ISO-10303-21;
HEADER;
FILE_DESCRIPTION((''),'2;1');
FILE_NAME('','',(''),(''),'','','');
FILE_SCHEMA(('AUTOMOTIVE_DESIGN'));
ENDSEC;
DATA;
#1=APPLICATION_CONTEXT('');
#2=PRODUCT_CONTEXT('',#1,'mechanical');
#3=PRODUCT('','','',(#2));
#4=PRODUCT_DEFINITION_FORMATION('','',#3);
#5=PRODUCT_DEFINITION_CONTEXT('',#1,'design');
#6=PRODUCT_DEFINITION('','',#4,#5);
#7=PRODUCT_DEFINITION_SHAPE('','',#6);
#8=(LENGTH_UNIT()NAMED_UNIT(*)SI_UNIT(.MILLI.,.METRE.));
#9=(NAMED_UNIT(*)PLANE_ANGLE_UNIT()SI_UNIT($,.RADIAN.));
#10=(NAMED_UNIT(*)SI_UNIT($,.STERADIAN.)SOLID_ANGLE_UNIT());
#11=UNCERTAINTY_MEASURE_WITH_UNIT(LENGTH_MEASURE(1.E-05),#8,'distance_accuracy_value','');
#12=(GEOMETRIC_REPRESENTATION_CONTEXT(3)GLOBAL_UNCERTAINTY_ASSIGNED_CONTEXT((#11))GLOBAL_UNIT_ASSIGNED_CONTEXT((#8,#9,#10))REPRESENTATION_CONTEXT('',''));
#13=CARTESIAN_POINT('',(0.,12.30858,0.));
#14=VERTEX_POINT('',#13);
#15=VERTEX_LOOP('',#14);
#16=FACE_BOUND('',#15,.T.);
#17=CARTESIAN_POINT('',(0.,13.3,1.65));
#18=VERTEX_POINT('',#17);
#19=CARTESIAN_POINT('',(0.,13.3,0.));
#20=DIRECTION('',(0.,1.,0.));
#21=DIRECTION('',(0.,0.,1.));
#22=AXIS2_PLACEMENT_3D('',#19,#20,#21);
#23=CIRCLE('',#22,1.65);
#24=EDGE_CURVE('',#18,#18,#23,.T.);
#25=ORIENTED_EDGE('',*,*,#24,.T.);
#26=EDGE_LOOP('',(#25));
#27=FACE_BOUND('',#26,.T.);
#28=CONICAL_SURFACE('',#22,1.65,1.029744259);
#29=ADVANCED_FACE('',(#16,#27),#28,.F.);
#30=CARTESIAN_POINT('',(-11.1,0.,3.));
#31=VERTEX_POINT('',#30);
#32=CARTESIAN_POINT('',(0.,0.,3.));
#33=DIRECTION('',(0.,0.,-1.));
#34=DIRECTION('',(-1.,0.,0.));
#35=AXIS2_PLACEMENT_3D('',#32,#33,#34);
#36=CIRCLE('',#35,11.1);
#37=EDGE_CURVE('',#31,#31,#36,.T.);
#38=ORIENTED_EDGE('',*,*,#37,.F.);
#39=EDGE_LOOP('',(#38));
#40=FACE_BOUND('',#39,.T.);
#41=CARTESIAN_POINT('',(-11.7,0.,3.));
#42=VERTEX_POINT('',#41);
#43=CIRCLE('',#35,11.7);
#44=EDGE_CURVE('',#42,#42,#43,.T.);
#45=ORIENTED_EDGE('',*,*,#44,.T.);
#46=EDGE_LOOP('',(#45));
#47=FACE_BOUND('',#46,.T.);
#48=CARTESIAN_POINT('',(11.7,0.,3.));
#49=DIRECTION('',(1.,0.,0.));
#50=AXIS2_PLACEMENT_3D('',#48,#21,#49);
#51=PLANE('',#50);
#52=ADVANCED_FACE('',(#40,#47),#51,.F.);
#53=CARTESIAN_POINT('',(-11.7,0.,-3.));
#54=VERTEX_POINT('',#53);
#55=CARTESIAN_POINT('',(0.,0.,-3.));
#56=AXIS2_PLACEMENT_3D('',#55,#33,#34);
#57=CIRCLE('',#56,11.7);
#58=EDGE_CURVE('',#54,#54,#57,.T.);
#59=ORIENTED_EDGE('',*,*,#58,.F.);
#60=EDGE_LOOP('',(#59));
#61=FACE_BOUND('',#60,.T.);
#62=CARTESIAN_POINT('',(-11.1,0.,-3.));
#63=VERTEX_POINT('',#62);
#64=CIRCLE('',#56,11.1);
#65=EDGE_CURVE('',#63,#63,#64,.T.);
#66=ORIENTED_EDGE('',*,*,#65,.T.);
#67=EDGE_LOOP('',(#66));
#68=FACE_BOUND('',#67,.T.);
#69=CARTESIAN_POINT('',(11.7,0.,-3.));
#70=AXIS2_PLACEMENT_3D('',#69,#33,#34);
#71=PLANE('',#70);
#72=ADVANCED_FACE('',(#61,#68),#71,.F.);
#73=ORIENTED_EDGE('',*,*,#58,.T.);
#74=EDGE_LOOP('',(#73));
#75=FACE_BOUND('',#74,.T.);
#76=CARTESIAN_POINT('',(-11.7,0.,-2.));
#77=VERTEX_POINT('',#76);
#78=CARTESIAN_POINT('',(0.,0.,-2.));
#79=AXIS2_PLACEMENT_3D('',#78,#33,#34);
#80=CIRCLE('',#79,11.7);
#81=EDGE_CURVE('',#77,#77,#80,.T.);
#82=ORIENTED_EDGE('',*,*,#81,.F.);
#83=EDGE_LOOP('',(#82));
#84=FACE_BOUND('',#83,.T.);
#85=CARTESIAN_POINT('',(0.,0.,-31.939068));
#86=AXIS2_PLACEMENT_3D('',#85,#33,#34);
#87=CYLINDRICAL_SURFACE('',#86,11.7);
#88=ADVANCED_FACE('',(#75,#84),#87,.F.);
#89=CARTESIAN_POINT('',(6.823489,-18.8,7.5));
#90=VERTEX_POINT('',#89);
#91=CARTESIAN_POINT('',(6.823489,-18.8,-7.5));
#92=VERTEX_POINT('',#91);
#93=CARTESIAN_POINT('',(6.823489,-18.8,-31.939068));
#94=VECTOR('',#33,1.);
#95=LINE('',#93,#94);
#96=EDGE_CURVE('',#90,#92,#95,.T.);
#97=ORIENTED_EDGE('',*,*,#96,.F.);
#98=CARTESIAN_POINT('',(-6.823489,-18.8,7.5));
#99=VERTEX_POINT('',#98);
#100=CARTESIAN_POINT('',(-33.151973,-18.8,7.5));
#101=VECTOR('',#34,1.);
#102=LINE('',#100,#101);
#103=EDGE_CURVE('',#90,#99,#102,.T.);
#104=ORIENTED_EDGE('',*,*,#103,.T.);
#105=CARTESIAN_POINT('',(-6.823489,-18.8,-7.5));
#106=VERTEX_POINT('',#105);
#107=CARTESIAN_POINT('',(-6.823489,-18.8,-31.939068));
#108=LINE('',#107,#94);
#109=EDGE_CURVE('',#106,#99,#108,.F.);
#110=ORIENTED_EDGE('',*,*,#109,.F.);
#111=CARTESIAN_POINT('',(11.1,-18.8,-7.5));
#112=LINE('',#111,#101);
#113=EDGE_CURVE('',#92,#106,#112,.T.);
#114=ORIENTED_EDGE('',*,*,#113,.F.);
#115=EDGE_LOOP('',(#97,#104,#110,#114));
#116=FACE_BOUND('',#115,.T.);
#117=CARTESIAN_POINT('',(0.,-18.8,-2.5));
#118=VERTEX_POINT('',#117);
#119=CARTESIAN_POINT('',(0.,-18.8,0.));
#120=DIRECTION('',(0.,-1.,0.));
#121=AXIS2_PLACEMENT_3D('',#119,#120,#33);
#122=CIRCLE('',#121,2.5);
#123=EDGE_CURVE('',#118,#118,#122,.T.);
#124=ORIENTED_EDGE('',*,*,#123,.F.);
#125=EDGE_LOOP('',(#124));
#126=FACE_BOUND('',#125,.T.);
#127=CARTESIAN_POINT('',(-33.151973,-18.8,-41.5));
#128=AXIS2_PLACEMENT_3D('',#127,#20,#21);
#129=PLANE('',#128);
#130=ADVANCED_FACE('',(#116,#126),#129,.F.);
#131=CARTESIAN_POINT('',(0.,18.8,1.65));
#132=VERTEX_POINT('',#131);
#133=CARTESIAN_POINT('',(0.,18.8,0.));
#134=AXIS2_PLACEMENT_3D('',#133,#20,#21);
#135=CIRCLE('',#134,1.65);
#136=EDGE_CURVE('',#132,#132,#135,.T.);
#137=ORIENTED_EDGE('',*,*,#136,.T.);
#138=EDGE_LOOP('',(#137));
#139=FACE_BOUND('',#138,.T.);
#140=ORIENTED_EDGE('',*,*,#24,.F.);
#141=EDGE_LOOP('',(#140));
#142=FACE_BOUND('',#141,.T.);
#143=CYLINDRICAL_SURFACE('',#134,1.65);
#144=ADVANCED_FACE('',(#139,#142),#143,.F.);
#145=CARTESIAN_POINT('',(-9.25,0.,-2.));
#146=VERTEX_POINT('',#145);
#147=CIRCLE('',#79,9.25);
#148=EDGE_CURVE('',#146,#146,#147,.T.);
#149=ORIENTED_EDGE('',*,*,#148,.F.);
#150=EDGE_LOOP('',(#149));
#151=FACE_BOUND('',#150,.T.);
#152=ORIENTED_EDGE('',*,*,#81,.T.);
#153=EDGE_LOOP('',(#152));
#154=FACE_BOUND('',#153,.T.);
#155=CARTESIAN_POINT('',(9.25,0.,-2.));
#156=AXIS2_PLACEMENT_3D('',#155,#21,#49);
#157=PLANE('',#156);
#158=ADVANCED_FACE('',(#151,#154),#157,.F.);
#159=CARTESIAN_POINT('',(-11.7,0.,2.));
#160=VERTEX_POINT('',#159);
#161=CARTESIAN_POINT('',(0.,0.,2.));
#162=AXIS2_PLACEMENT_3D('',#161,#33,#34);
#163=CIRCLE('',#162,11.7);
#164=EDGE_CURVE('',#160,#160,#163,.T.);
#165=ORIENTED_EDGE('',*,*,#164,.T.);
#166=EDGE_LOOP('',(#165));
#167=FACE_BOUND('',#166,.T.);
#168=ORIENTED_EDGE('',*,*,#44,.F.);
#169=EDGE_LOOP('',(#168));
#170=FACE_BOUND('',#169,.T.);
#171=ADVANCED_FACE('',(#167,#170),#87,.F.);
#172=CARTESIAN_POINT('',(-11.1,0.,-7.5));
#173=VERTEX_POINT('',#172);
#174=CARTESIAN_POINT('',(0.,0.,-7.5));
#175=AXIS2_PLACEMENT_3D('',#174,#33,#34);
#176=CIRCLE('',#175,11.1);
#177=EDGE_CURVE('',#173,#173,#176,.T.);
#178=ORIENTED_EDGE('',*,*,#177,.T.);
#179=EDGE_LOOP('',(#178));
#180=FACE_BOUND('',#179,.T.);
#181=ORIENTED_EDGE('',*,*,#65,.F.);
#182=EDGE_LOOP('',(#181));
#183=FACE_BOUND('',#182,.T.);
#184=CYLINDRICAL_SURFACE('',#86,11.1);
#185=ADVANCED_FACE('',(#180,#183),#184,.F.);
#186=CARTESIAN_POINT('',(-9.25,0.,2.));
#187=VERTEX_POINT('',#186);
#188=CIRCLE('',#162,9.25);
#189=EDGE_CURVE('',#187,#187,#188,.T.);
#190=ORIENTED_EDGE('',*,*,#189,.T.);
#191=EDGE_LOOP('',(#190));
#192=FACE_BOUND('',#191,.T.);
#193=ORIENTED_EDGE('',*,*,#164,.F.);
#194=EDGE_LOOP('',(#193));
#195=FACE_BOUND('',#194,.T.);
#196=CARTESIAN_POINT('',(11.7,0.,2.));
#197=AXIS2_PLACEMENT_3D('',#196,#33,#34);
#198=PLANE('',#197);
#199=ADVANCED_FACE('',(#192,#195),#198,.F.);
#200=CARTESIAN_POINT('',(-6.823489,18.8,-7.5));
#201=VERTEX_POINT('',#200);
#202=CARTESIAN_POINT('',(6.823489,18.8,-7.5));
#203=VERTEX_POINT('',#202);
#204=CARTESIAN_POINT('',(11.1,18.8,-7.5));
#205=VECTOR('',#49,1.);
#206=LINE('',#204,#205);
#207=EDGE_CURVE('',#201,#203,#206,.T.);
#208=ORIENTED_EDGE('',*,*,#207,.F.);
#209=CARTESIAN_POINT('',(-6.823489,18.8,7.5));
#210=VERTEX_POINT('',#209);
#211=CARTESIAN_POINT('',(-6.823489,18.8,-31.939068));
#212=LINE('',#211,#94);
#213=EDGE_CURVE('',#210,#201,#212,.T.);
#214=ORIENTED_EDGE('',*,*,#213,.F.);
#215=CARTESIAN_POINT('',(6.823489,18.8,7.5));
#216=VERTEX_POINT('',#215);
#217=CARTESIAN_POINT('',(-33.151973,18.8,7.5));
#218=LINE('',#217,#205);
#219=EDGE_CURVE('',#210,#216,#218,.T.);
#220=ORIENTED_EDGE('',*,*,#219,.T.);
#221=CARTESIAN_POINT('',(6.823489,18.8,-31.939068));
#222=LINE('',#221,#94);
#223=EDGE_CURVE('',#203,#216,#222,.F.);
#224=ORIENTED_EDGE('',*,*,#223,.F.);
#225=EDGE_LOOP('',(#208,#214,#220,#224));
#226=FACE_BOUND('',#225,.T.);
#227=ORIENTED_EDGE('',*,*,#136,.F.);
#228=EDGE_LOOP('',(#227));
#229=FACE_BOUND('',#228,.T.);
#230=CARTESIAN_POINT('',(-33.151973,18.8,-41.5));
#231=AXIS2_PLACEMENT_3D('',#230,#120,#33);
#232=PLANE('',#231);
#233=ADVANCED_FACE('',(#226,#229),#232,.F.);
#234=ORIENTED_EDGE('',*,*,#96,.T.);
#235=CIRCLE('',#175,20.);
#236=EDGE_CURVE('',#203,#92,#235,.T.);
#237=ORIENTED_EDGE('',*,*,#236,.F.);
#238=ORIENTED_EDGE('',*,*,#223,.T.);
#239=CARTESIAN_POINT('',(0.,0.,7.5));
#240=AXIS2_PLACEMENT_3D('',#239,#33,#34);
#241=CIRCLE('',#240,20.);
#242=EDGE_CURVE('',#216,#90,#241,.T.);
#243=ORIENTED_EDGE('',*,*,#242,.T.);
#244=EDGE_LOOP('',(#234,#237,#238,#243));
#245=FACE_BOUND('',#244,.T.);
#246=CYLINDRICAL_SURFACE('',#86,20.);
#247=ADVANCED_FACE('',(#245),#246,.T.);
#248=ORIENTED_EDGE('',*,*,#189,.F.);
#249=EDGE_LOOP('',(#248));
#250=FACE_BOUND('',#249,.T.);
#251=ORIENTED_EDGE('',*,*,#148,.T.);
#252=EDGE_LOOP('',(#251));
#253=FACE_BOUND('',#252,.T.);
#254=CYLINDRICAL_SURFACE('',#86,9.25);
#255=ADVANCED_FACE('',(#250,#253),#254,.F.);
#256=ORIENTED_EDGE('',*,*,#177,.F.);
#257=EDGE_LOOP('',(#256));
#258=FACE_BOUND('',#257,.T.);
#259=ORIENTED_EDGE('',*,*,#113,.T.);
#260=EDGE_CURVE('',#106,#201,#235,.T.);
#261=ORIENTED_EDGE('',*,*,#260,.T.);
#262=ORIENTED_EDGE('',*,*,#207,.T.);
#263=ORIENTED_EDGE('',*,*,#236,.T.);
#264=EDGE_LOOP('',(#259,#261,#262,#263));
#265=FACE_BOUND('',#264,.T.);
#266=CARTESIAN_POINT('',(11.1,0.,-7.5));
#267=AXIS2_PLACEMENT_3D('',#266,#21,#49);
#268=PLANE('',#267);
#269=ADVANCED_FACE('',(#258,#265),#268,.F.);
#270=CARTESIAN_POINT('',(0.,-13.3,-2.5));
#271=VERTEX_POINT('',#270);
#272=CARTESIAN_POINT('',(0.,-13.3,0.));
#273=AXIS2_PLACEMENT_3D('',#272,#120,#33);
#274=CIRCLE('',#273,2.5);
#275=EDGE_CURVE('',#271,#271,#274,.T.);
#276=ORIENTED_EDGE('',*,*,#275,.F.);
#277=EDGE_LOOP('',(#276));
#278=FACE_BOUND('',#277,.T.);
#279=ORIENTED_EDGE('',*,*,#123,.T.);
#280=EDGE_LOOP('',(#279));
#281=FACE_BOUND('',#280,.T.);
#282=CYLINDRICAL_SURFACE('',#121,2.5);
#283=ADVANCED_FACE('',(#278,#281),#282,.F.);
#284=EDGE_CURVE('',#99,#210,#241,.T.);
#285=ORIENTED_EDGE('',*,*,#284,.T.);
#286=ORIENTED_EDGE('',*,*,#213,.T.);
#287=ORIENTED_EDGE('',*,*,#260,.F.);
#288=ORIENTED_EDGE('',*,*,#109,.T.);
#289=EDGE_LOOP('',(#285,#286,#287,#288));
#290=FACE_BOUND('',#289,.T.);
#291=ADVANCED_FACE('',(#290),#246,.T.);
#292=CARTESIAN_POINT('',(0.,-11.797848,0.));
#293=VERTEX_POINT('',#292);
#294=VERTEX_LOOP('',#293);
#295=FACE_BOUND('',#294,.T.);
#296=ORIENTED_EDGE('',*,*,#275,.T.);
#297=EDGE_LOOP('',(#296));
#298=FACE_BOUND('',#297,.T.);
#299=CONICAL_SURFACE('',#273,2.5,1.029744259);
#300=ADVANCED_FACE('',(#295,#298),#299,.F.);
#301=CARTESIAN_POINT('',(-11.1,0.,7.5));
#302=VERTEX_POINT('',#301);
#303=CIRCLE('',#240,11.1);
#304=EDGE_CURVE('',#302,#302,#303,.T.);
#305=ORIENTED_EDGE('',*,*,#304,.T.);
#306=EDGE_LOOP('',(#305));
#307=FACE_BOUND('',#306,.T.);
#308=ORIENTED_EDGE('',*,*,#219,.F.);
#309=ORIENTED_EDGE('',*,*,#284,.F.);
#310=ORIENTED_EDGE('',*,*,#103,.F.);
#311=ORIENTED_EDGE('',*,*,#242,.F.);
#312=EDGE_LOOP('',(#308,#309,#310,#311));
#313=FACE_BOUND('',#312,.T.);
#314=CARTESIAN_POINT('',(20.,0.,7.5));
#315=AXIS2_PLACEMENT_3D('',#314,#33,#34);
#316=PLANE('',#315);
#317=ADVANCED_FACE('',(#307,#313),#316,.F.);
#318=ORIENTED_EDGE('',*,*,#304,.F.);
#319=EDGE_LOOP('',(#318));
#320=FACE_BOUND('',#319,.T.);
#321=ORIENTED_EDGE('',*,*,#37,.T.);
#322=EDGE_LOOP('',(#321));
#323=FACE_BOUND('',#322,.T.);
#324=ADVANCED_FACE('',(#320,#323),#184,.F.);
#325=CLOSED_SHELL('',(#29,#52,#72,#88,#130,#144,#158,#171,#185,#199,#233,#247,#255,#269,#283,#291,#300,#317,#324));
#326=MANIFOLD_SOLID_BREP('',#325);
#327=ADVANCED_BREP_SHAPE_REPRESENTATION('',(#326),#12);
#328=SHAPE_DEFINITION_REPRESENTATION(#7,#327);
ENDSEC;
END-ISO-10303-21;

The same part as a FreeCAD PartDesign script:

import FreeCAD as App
import Part
import Sketcher
from FreeCAD import Vector


def add_polygon(sketch, points):
    """Adds a closed chain of lines whose ends are joined by coincident constraints."""
    first, n = sketch.GeometryCount, len(points)
    for a, b in zip(points, points[1:] + points[:1]):
        sketch.addGeometry(Part.LineSegment(App.Vector(*a, 0), App.Vector(*b, 0)), False)
    for i in range(n):
        sketch.addConstraint(Sketcher.Constraint("Coincident", first + i, 2, first + (i + 1) % n, 1))

doc = App.newDocument("Part")
body = doc.addObject("PartDesign::Body", "Body")

sketch1 = body.newObject("Sketcher::SketchObject", "Sketch")
sketch1.AttachmentSupport = (doc.getObject("XZ_Plane"), [""])
sketch1.MapMode = "FlatFace"
add_polygon(sketch1, [(20, 7.5), (20, -7.5), (11.1, -7.5), (11.1, -3), (11.7, -3), (11.7, -2), (9.25, -2), (9.25, 2), (11.7, 2), (11.7, 3), (11.1, 3), (11.1, 7.5)])
sketch1.addConstraint([
    Sketcher.Constraint("Vertical", 0),
    Sketcher.Constraint("Horizontal", 1),
    Sketcher.Constraint("Vertical", 2),
    Sketcher.Constraint("Horizontal", 3),
    Sketcher.Constraint("Vertical", 4),
    Sketcher.Constraint("Horizontal", 5),
    Sketcher.Constraint("Vertical", 6),
    Sketcher.Constraint("Horizontal", 7),
    Sketcher.Constraint("Vertical", 8),
    Sketcher.Constraint("Horizontal", 9),
    Sketcher.Constraint("Vertical", 10),
    Sketcher.Constraint("Horizontal", 11),
    Sketcher.Constraint("Symmetric", 4, 2, 7, 2, -1),
    Sketcher.Constraint("Symmetric", 2, 2, 9, 2, -1),
    Sketcher.Constraint("Equal", 2, 10),
    Sketcher.Constraint("DistanceY", 0, 2, 0, 1, 15.0),
    Sketcher.Constraint("DistanceY", 4, 1, 4, 2, 1.0),
    Sketcher.Constraint("DistanceY", 6, 1, 6, 2, 4.0),
    Sketcher.Constraint("DistanceX", 1, 2, 1, 1, 8.9),
    Sketcher.Constraint("DistanceX", 3, 1, 3, 2, 0.6),
    Sketcher.Constraint("DistanceX", -1, 1, 0, 2, 20.0),
    Sketcher.Constraint("DistanceX", 5, 2, 5, 1, 2.45),
])
revolution = body.newObject("PartDesign::Revolution", "Revolution")
revolution.Profile = sketch1
revolution.ReferenceAxis = (sketch1, ["V_Axis"])
revolution.Angle = 360

sketch2 = body.newObject("Sketcher::SketchObject", "Sketch001")
sketch2.AttachmentSupport = (doc.getObject("XY_Plane"), [""])
sketch2.MapMode = "FlatFace"
sketch2.AttachmentOffset = App.Placement(Vector(0, 0, 7.5), App.Rotation())
add_polygon(sketch2, [(-33.151973, 28.04892), (-33.151973, 18.8), (30.869772, 18.8), (30.869772, 28.04892)])
add_polygon(sketch2, [(-33.151973, -18.8), (-33.151973, -28.04892), (30.869772, -28.04892), (30.869772, -18.8)])
sketch2.addConstraint([
    Sketcher.Constraint("Vertical", 0),
    Sketcher.Constraint("Horizontal", 1),
    Sketcher.Constraint("Vertical", 2),
    Sketcher.Constraint("Horizontal", 3),
    Sketcher.Constraint("Vertical", 4),
    Sketcher.Constraint("Horizontal", 5),
    Sketcher.Constraint("Vertical", 6),
    Sketcher.Constraint("Horizontal", 7),
    Sketcher.Constraint("Symmetric", 3, 2, 4, 2, -1),
    Sketcher.Constraint("Symmetric", 1, 2, 6, 2, -1),
    Sketcher.Constraint("DistanceY", -1, 1, 0, 2, 18.8),
    Sketcher.Constraint("DistanceY", 0, 2, 0, 1, 9.24892),
    Sketcher.Constraint("DistanceX", 1, 1, 1, 2, 64.021744),
    Sketcher.Constraint("DistanceX", -1, 1, 1, 2, 30.869772),
])
pocket1 = body.newObject("PartDesign::Pocket", "Pocket")
pocket1.Profile = sketch2
pocket1.Length = 49

sketch3 = body.newObject("Sketcher::SketchObject", "Sketch002")
sketch3.AttachmentSupport = (doc.getObject("XZ_Plane"), [""])
sketch3.MapMode = "FlatFace"
sketch3.AttachmentOffset = App.Placement(Vector(0, 0, -18.8), App.Rotation())
sketch3.addGeometry(Part.Circle(Vector(0, 0, 0), Vector(0, 0, 1), 1.65), False)
sketch3.addConstraint([
    Sketcher.Constraint("Coincident", 0, 3, -1, 1),
    Sketcher.Constraint("Diameter", 0, 3.3),
])
doc.recompute()
hole = body.newObject("PartDesign::Hole", "Hole")
hole.Profile = sketch3
hole.ThreadType = "None"
hole.Diameter = 3.3
hole.DepthType = "Dimension"
hole.Depth = 5.5
hole.DrillPoint = "Angled"
hole.DrillPointAngle = 118
hole.Reversed = True

sketch4 = body.newObject("Sketcher::SketchObject", "Sketch003")
sketch4.AttachmentSupport = (doc.getObject("XZ_Plane"), [""])
sketch4.MapMode = "FlatFace"
sketch4.AttachmentOffset = App.Placement(Vector(0, 0, 18.8), App.Rotation())
sketch4.addGeometry(Part.Circle(Vector(0, 0, 0), Vector(0, 0, 1), 2.5), False)
sketch4.addConstraint([
    Sketcher.Constraint("Coincident", 0, 3, -1, 1),
    Sketcher.Constraint("Diameter", 0, 5.0),
])
doc.recompute()
hole2 = body.newObject("PartDesign::Hole", "Hole001")
hole2.Profile = sketch4
hole2.ThreadType = "None"
hole2.Diameter = 5
hole2.DepthType = "Dimension"
hole2.Depth = 5.5
hole2.DrillPoint = "Angled"
hole2.DrillPointAngle = 118

doc.recompute()
